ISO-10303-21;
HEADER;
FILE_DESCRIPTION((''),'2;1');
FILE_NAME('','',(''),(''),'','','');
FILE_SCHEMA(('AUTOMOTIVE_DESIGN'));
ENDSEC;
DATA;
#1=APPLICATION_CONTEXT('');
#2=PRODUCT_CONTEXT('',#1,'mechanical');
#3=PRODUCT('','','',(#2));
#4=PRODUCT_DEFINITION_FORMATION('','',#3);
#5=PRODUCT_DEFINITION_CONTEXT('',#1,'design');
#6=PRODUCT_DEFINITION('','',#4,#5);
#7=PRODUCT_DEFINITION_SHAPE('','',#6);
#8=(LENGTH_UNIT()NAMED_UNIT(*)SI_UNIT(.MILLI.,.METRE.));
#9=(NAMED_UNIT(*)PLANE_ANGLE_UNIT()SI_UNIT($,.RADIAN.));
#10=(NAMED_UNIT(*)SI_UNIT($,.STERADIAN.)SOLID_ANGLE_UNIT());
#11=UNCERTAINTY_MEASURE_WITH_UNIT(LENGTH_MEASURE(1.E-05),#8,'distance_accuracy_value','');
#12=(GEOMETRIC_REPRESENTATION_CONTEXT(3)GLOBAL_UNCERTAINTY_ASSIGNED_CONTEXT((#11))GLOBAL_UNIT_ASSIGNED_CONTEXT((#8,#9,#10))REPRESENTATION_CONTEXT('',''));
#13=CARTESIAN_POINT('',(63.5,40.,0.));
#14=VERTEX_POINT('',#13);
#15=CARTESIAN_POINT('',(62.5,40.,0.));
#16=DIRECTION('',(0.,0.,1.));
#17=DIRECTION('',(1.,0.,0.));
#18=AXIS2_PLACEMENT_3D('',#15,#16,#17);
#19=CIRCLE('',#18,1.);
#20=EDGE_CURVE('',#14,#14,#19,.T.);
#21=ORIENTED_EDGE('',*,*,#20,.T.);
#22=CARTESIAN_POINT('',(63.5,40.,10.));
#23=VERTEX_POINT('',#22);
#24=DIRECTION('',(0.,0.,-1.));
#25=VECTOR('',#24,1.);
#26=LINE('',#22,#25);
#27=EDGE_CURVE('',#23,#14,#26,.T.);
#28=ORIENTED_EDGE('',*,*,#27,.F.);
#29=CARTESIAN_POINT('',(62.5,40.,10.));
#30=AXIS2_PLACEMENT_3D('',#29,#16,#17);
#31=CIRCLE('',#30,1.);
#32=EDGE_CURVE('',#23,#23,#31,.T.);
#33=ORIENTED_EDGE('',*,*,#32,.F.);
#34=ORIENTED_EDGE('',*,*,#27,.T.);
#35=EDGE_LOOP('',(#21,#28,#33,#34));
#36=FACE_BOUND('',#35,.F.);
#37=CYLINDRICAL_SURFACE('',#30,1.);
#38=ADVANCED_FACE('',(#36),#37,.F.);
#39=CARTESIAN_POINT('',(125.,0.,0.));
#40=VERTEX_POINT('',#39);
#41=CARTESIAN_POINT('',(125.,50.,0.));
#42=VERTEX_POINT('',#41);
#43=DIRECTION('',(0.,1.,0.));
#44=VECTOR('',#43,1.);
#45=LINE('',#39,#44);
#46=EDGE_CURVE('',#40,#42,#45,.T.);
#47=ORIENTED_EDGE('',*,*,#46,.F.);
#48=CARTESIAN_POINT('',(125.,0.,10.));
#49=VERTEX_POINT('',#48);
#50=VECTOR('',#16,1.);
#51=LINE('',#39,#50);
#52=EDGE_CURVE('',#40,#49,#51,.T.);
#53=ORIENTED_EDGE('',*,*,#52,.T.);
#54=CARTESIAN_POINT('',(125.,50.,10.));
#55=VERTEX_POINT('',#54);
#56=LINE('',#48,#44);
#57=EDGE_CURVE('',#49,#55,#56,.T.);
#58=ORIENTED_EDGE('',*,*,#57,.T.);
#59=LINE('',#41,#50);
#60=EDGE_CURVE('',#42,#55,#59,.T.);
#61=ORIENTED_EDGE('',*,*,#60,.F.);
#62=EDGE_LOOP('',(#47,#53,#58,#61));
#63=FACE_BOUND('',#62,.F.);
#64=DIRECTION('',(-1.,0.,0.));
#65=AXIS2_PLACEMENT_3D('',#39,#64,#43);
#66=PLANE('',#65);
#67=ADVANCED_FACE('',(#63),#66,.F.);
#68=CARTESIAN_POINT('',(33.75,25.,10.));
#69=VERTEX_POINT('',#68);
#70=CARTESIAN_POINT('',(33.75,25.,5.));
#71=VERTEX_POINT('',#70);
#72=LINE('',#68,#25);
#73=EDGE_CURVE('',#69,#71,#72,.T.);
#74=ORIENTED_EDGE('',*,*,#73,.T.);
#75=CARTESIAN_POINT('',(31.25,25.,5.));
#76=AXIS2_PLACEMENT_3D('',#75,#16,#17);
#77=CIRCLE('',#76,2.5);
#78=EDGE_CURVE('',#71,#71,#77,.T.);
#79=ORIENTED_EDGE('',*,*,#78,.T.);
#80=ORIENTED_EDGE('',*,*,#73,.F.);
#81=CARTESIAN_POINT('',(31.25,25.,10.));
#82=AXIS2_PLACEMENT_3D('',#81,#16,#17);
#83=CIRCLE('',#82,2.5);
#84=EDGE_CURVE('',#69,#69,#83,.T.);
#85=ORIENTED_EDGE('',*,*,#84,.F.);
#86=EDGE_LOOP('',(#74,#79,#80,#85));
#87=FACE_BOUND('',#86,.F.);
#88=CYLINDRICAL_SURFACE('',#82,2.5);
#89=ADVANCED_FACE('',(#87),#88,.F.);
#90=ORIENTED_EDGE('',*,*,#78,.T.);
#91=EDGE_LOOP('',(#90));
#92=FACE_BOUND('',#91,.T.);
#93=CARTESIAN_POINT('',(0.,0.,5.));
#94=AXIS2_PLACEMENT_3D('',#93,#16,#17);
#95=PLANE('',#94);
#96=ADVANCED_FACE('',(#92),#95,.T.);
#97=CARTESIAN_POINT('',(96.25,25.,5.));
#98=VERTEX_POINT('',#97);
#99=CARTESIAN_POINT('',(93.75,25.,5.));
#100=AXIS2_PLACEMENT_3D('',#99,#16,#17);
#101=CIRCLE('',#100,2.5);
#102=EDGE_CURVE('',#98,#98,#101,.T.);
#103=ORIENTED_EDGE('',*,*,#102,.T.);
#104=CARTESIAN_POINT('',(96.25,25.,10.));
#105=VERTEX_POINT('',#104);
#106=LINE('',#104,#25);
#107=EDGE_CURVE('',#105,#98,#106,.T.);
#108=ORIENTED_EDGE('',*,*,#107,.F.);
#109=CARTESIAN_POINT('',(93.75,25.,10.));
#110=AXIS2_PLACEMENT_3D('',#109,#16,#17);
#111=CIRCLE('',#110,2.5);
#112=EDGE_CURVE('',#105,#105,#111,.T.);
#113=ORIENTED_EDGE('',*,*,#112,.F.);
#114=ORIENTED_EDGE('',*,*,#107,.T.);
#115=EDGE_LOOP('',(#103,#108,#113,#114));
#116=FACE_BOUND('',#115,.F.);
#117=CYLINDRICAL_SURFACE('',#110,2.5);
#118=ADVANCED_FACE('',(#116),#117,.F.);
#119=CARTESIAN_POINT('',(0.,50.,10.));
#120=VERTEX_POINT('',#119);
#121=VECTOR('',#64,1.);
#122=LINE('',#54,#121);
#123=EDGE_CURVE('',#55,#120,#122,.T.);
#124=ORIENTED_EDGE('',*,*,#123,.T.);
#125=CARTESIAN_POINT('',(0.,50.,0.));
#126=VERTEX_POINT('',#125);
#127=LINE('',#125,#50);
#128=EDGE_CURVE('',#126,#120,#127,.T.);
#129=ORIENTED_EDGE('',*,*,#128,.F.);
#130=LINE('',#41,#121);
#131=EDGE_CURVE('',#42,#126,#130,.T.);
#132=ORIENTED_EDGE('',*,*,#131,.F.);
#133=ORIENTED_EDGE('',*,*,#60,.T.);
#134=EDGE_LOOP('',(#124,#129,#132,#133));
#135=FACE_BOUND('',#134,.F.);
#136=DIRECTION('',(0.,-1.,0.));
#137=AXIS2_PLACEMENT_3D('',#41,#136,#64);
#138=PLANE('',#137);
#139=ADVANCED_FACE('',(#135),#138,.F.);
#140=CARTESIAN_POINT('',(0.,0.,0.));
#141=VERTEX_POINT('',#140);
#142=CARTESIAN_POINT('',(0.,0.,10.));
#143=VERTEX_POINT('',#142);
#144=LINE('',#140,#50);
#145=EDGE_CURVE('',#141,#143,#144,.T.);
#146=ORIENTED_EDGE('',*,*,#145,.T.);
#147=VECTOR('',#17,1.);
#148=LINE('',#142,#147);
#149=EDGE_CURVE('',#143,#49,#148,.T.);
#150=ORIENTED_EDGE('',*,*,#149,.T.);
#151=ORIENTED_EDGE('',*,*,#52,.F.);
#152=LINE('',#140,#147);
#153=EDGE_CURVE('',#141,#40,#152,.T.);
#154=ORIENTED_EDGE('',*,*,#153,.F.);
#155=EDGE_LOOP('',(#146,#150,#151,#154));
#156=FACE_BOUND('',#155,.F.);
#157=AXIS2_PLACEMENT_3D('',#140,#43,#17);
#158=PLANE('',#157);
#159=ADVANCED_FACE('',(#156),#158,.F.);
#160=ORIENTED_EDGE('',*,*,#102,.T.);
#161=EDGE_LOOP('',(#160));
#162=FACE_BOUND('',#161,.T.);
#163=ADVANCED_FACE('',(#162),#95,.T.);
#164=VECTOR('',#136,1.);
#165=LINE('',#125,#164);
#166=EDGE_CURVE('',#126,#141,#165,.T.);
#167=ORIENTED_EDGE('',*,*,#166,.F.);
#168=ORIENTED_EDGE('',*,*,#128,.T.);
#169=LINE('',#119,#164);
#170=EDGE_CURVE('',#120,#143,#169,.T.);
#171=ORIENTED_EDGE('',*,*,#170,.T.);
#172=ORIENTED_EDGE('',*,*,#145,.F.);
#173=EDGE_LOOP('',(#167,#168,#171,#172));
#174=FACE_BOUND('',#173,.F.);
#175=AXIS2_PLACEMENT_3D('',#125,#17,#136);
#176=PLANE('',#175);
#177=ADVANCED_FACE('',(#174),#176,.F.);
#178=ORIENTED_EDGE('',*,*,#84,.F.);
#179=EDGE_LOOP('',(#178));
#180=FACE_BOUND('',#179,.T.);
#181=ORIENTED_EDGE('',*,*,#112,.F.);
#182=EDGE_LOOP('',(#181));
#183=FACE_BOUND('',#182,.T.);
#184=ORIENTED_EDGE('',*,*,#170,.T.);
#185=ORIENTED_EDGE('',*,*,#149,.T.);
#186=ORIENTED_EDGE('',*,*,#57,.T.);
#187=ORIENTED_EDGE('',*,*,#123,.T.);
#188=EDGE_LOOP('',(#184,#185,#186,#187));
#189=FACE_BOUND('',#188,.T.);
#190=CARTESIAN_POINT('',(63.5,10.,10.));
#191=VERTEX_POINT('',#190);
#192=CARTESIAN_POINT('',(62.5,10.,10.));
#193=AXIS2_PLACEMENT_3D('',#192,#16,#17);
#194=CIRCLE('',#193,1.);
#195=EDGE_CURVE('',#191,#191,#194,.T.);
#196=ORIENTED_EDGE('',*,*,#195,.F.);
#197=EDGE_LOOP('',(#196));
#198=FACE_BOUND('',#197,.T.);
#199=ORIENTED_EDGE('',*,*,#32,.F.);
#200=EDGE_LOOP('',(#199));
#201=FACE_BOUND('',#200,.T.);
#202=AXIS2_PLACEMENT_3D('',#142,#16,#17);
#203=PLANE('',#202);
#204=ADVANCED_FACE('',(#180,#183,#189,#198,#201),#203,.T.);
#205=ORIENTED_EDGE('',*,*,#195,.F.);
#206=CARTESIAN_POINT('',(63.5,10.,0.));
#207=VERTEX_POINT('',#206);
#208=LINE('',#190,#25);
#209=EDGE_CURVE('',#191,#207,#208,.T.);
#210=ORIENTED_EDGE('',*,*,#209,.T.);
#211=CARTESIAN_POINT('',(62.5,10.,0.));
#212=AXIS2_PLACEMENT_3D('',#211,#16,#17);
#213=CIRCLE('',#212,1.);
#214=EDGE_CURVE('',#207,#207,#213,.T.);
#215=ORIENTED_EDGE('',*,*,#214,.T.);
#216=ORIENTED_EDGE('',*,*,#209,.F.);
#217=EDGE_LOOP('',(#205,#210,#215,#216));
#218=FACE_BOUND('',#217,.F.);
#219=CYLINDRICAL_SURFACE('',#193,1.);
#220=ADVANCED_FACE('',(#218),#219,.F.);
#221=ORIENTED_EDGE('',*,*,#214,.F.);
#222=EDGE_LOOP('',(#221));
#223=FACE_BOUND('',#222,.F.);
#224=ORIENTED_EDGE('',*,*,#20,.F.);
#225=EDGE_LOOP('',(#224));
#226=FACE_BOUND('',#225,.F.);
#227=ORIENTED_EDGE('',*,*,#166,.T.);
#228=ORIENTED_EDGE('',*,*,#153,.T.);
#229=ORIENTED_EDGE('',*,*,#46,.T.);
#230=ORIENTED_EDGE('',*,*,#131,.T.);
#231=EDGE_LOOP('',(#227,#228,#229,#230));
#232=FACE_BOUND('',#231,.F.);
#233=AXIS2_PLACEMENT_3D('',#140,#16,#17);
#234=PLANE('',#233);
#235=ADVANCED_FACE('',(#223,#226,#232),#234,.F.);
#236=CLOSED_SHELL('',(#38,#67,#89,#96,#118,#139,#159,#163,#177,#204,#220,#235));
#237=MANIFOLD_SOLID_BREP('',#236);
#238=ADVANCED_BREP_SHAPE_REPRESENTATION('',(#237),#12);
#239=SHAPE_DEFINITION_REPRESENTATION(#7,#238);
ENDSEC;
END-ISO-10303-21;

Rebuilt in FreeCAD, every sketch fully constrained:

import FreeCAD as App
import Part
import Sketcher

V = App.Vector

doc = App.newDocument("Part")
body = doc.addObject("PartDesign::Body", "Body")

sketch1 = body.newObject("Sketcher::SketchObject", "Sketch")
sketch1.AttachmentSupport = (doc.getObject("XY_Plane"), [""])
sketch1.MapMode = "FlatFace"
sketch1.addGeometry(Part.LineSegment(V(0, 50, 0), V(0, 0, 0)), False)
sketch1.addGeometry(Part.LineSegment(V(0, 0, 0), V(125, 0, 0)), False)
sketch1.addGeometry(Part.LineSegment(V(125, 0, 0), V(125, 50, 0)), False)
sketch1.addGeometry(Part.LineSegment(V(125, 50, 0), V(0, 50, 0)), False)
sketch1.addConstraint(Sketcher.Constraint("Coincident", 0, 2, 1, 1))
sketch1.addConstraint(Sketcher.Constraint("Coincident", 1, 2, 2, 1))
sketch1.addConstraint(Sketcher.Constraint("Coincident", 2, 2, 3, 1))
sketch1.addConstraint(Sketcher.Constraint("Coincident", 3, 2, 0, 1))
sketch1.addConstraint(Sketcher.Constraint("Vertical", 0))
sketch1.addConstraint(Sketcher.Constraint("Horizontal", 1))
sketch1.addConstraint(Sketcher.Constraint("Vertical", 2))
sketch1.addConstraint(Sketcher.Constraint("Horizontal", 3))
sketch1.addConstraint(Sketcher.Constraint("Coincident", 0, 2, -1, 1))
sketch1.addConstraint(Sketcher.Constraint("DistanceX", 1, 1, 1, 2, 125.0))
sketch1.addConstraint(Sketcher.Constraint("DistanceY", 0, 2, 0, 1, 50.0))
pad1 = body.newObject("PartDesign::Pad", "Pad")
pad1.Profile = sketch1
pad1.Length = 10

sketch2 = body.newObject("Sketcher::SketchObject", "Sketch001")
sketch2.AttachmentSupport = (doc.getObject("XY_Plane"), [""])
sketch2.MapMode = "FlatFace"
sketch2.AttachmentOffset = App.Placement(V(0, 0, 10), App.Rotation())
sketch2.addGeometry(Part.Circle(V(31.25, 25, 0), V(0, 0, 1), 2.5), False)
sketch2.addGeometry(Part.Circle(V(93.75, 25, 0), V(0, 0, 1), 2.5), False)
sketch2.addConstraint(Sketcher.Constraint("Equal", 0, 1))
sketch2.addConstraint(Sketcher.Constraint("Horizontal", 0, 3, 1, 3))
sketch2.addConstraint(Sketcher.Constraint("Diameter", 0, 5.0))
sketch2.addConstraint(Sketcher.Constraint("DistanceY", -1, 1, 0, 3, 25.0))
sketch2.addConstraint(Sketcher.Constraint("DistanceX", 0, 3, 1, 3, 62.5))
sketch2.addConstraint(Sketcher.Constraint("DistanceX", -1, 1, 0, 3, 31.25))
pocket1 = body.newObject("PartDesign::Pocket", "Pocket")
pocket1.Profile = sketch2
pocket1.Length = 5

sketch3 = body.newObject("Sketcher::SketchObject", "Sketch002")
sketch3.AttachmentSupport = (doc.getObject("XY_Plane"), [""])
sketch3.MapMode = "FlatFace"
sketch3.AttachmentOffset = App.Placement(V(0, 0, 10), App.Rotation())
sketch3.addGeometry(Part.Circle(V(62.5, 40, 0), V(0, 0, 1), 1), False)
sketch3.addGeometry(Part.Circle(V(62.5, 10, 0), V(0, 0, 1), 1), False)
sketch3.addConstraint(Sketcher.Constraint("Equal", 0, 1))
sketch3.addConstraint(Sketcher.Constraint("Vertical", 0, 3, 1, 3))
sketch3.addConstraint(Sketcher.Constraint("Diameter", 0, 2.0))
sketch3.addConstraint(Sketcher.Constraint("DistanceY", -1, 1, 1, 3, 10.0))
sketch3.addConstraint(Sketcher.Constraint("DistanceY", 1, 3, 0, 3, 30.0))
sketch3.addConstraint(Sketcher.Constraint("DistanceX", -1, 1, 0, 3, 62.5))
pocket2 = body.newObject("PartDesign::Pocket", "Pocket001")
pocket2.Profile = sketch3
pocket2.Length = 10

doc.recompute()
